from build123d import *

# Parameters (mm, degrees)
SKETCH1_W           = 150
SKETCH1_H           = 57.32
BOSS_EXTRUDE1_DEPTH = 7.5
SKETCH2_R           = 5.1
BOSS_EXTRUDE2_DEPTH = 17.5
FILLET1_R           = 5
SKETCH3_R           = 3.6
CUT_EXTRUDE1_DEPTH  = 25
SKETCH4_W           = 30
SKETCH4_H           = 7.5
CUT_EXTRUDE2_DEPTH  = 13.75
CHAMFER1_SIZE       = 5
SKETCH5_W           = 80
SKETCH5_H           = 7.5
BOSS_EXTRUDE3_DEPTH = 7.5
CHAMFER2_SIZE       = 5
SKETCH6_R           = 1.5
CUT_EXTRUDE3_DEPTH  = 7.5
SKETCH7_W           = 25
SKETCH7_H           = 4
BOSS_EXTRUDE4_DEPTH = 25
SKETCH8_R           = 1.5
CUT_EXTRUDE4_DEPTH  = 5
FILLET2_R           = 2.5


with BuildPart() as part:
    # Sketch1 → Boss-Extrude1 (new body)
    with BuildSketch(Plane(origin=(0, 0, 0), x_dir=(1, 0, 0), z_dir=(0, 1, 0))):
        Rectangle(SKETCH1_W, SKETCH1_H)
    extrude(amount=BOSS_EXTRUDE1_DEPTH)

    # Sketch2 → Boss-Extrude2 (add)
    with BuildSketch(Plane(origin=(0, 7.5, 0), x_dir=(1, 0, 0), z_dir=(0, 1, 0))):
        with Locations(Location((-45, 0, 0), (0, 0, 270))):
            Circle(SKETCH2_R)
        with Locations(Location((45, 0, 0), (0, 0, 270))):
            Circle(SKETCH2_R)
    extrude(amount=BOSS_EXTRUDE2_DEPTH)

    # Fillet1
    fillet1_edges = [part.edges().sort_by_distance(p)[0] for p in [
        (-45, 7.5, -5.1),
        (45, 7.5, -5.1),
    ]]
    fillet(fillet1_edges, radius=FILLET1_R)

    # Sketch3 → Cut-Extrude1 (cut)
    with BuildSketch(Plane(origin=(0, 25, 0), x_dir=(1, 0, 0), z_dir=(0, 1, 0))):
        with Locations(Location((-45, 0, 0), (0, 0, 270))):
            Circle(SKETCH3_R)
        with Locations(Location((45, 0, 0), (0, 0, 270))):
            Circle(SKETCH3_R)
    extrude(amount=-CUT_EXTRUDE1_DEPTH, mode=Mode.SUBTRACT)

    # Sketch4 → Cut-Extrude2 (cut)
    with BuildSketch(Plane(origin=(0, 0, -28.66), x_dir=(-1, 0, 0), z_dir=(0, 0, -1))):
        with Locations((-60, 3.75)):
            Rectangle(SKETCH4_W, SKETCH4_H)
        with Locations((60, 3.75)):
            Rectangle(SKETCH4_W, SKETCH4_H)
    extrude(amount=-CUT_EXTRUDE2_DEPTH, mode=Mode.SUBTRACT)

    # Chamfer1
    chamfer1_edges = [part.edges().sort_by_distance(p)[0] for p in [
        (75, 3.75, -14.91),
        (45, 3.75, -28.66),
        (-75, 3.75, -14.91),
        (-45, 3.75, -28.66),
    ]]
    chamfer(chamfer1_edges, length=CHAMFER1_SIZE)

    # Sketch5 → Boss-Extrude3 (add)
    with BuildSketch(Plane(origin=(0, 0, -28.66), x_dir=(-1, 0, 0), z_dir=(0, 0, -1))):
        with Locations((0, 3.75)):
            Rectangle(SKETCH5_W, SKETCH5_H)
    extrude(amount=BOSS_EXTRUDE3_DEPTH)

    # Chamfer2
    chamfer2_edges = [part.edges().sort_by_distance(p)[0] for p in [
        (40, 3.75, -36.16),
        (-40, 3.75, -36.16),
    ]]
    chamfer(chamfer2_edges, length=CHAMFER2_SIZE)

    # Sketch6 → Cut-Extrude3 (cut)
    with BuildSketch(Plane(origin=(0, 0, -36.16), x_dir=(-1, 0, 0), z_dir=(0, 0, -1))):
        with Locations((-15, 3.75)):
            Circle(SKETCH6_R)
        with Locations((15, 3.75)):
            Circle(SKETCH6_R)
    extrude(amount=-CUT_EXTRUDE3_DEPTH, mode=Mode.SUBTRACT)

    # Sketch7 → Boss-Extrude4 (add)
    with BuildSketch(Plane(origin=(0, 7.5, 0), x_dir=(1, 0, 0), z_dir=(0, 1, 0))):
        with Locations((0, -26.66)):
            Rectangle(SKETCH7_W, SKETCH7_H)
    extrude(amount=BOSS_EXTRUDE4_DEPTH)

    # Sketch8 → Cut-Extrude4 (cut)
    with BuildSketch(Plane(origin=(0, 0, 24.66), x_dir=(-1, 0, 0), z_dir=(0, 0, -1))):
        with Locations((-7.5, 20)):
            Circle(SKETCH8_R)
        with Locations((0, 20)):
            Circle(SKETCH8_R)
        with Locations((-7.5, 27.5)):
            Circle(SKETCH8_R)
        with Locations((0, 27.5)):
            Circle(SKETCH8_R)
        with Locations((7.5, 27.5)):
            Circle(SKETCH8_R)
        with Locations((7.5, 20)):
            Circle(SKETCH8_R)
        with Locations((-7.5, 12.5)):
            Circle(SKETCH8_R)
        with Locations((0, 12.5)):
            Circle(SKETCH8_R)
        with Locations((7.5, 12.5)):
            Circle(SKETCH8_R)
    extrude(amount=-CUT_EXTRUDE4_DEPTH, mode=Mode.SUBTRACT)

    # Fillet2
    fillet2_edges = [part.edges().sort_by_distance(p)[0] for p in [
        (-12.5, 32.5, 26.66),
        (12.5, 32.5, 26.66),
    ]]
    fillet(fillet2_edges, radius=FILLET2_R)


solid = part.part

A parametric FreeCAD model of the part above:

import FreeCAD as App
import Part
import Sketcher

V = App.Vector


def edges_at(feature, points):
    """Names of the edges that pass closest to the given points."""
    edges = feature.Shape.Edges
    near = lambda p: min(range(len(edges)), key=lambda i: edges[i].distToShape(Part.Vertex(*p))[0])
    return sorted({f"Edge{near(p) + 1}" for p in points})


def add_polygon(sketch, points):
    """Adds a closed chain of lines whose ends are joined by coincident constraints."""
    first, n = sketch.GeometryCount, len(points)
    for a, b in zip(points, points[1:] + points[:1]):
        sketch.addGeometry(Part.LineSegment(App.Vector(*a, 0), App.Vector(*b, 0)), False)
    for i in range(n):
        sketch.addConstraint(Sketcher.Constraint("Coincident", first + i, 2, first + (i + 1) % n, 1))

doc = App.newDocument("Part")
body = doc.addObject("PartDesign::Body", "Body")

sketch1 = body.newObject("Sketcher::SketchObject", "Sketch")
sketch1.AttachmentSupport = (doc.getObject("XZ_Plane"), [""])
sketch1.MapMode = "FlatFace"
add_polygon(sketch1, [(-75, -29), (-75, 29), (75, 29), (75, -29)])
sketch1.addConstraint(Sketcher.Constraint("Vertical", 0))
sketch1.addConstraint(Sketcher.Constraint("Horizontal", 1))
sketch1.addConstraint(Sketcher.Constraint("Vertical", 2))
sketch1.addConstraint(Sketcher.Constraint("Horizontal", 3))
sketch1.addConstraint(Sketcher.Constraint("Symmetric", 0, 2, 2, 2, -1, 1))
sketch1.addConstraint(Sketcher.Constraint("DistanceX", 1, 1, 1, 2, 150.0))
sketch1.addConstraint(Sketcher.Constraint("DistanceY", 0, 1, 0, 2, 57.32))
pad1 = body.newObject("PartDesign::Pad", "Pad")
pad1.Profile = sketch1
pad1.Length = 7.5
pad1.Reversed = True

sketch2 = body.newObject("Sketcher::SketchObject", "Sketch001")
sketch2.AttachmentSupport = (doc.getObject("XZ_Plane"), [""])
sketch2.MapMode = "FlatFace"
sketch2.AttachmentOffset = App.Placement(V(0, 0, -7.5), App.Rotation())
sketch2.addGeometry(Part.Circle(V(-45, 0, 0), V(0, 0, 1), 5), False)
sketch2.addGeometry(Part.Circle(V(45, 0, 0), V(0, 0, 1), 5), False)
sketch2.addConstraint(Sketcher.Constraint("Equal", 0, 1))
sketch2.addConstraint(Sketcher.Constraint("Symmetric", 0, 3, 1, 3, -1, 1))
sketch2.addConstraint(Sketcher.Constraint("PointOnObject", 0, 3, -1))
sketch2.addConstraint(Sketcher.Constraint("Diameter", 0, 10.2))
sketch2.addConstraint(Sketcher.Constraint("DistanceX", 0, 3, -1, 1, 45.0))
pad2 = body.newObject("PartDesign::Pad", "Pad001")
pad2.Profile = sketch2
pad2.Length = 17.5
pad2.Reversed = True
doc.recompute()

fillet = body.newObject("PartDesign::Fillet", "Fillet")
fillet.Base = (pad2, edges_at(pad2, [(-45, 7.5, -5.1), (45, 7.5, -5.1)]))
fillet.Radius = 5

sketch3 = body.newObject("Sketcher::SketchObject", "Sketch002")
sketch3.AttachmentSupport = (doc.getObject("XZ_Plane"), [""])
sketch3.MapMode = "FlatFace"
sketch3.AttachmentOffset = App.Placement(V(0, 0, -25), App.Rotation())
sketch3.addGeometry(Part.Circle(V(-45, 0, 0), V(0, 0, 1), 3.6), False)
sketch3.addGeometry(Part.Circle(V(45, 0, 0), V(0, 0, 1), 3.6), False)
sketch3.addConstraint(Sketcher.Constraint("Equal", 0, 1))
sketch3.addConstraint(Sketcher.Constraint("Symmetric", 0, 3, 1, 3, -1, 1))
sketch3.addConstraint(Sketcher.Constraint("PointOnObject", 0, 3, -1))
sketch3.addConstraint(Sketcher.Constraint("Diameter", 0, 7.2))
sketch3.addConstraint(Sketcher.Constraint("DistanceX", 0, 3, -1, 1, 45.0))
pocket1 = body.newObject("PartDesign::Pocket", "Pocket")
pocket1.Profile = sketch3
pocket1.Length = 25
pocket1.Reversed = True

sketch4 = body.newObject("Sketcher::SketchObject", "Sketch003")
sketch4.AttachmentSupport = (doc.getObject("XY_Plane"), [""])
sketch4.MapMode = "FlatFace"
sketch4.AttachmentOffset = App.Placement(V(0, 0, -28.66), App.Rotation())
add_polygon(sketch4, [(75, 8), (75, 0), (45, 0), (45, 8)])
add_polygon(sketch4, [(-45, 8), (-45, 0), (-75, 0), (-75, 8)])
sketch4.addConstraint(Sketcher.Constraint("Vertical", 0))
sketch4.addConstraint(Sketcher.Constraint("Horizontal", 1))
sketch4.addConstraint(Sketcher.Constraint("Vertical", 2))
sketch4.addConstraint(Sketcher.Constraint("Horizontal", 3))
sketch4.addConstraint(Sketcher.Constraint("Vertical", 4))
sketch4.addConstraint(Sketcher.Constraint("Horizontal", 5))
sketch4.addConstraint(Sketcher.Constraint("Vertical", 6))
sketch4.addConstraint(Sketcher.Constraint("Horizontal", 7))
sketch4.addConstraint(Sketcher.Constraint("Symmetric", 1, 2, 4, 2, -1, 1))
sketch4.addConstraint(Sketcher.Constraint("Symmetric", 0, 2, 5, 2, -2))
sketch4.addConstraint(Sketcher.Constraint("Horizontal", 3, 2, 6, 2))
sketch4.addConstraint(Sketcher.Constraint("DistanceX", 1, 2, 1, 1, 30.0))
sketch4.addConstraint(Sketcher.Constraint("DistanceY", 0, 2, 0, 1, 7.5))
sketch4.addConstraint(Sketcher.Constraint("DistanceX", -1, 1, 0, 2, 75.0))
pocket2 = body.newObject("PartDesign::Pocket", "Pocket001")
pocket2.Profile = sketch4
pocket2.Length = 13.75
pocket2.Reversed = True
doc.recompute()

chamfer = body.newObject("PartDesign::Chamfer", "Chamfer")
chamfer.Base = (pocket2, edges_at(pocket2, [
    (75, 3.75, -14.91),
    (45, 3.75, -28.66),
    (-75, 3.75, -14.91),
    (-45, 3.75, -28.66),
]))
chamfer.Size = 5

sketch5 = body.newObject("Sketcher::SketchObject", "Sketch004")
sketch5.AttachmentSupport = (doc.getObject("XY_Plane"), [""])
sketch5.MapMode = "FlatFace"
sketch5.AttachmentOffset = App.Placement(V(0, 0, -28.66), App.Rotation())
add_polygon(sketch5, [(40, 8), (40, 0), (-40, 0), (-40, 8)])
sketch5.addConstraint(Sketcher.Constraint("Vertical", 0))
sketch5.addConstraint(Sketcher.Constraint("Horizontal", 1))
sketch5.addConstraint(Sketcher.Constraint("Vertical", 2))
sketch5.addConstraint(Sketcher.Constraint("Horizontal", 3))
sketch5.addConstraint(Sketcher.Constraint("Symmetric", 0, 2, 1, 2, -1, 1))
sketch5.addConstraint(Sketcher.Constraint("DistanceX", 1, 2, 1, 1, 80.0))
sketch5.addConstraint(Sketcher.Constraint("DistanceY", 0, 2, 0, 1, 7.5))
pad3 = body.newObject("PartDesign::Pad", "Pad002")
pad3.Profile = sketch5
pad3.Length = 7.5
pad3.Reversed = True
doc.recompute()

chamfer2 = body.newObject("PartDesign::Chamfer", "Chamfer001")
chamfer2.Base = (pad3, edges_at(pad3, [(40, 3.75, -36.16), (-40, 3.75, -36.16)]))
chamfer2.Size = 5

sketch6 = body.newObject("Sketcher::SketchObject", "Sketch005")
sketch6.AttachmentSupport = (doc.getObject("XY_Plane"), [""])
sketch6.MapMode = "FlatFace"
sketch6.AttachmentOffset = App.Placement(V(0, 0, -36.16), App.Rotation())
sketch6.addGeometry(Part.Circle(V(15, 3.8, 0), V(0, 0, 1), 1.5), False)
sketch6.addGeometry(Part.Circle(V(-15, 3.8, 0), V(0, 0, 1), 1.5), False)
sketch6.addConstraint(Sketcher.Constraint("Equal", 0, 1))
sketch6.addConstraint(Sketcher.Constraint("Symmetric", 0, 3, 1, 3, -2))
sketch6.addConstraint(Sketcher.Constraint("Diameter", 0, 3.0))
sketch6.addConstraint(Sketcher.Constraint("DistanceX", -1, 1, 0, 3, 15.0))
sketch6.addConstraint(Sketcher.Constraint("DistanceY", -1, 1, 0, 3, 3.75))
pocket3 = body.newObject("PartDesign::Pocket", "Pocket002")
pocket3.Profile = sketch6
pocket3.Length = 7.5
pocket3.Reversed = True

sketch7 = body.newObject("Sketcher::SketchObject", "Sketch006")
sketch7.AttachmentSupport = (doc.getObject("XZ_Plane"), [""])
sketch7.MapMode = "FlatFace"
sketch7.AttachmentOffset = App.Placement(V(0, 0, -7.5), App.Rotation())
add_polygon(sketch7, [(-12.5, 24.7), (-12.5, 28.7), (12.5, 28.7), (12.5, 24.7)])
sketch7.addConstraint(Sketcher.Constraint("Vertical", 0))
sketch7.addConstraint(Sketcher.Constraint("Horizontal", 1))
sketch7.addConstraint(Sketcher.Constraint("Vertical", 2))
sketch7.addConstraint(Sketcher.Constraint("Horizontal", 3))
sketch7.addConstraint(Sketcher.Constraint("DistanceX", 1, 1, 1, 2, 25.0))
sketch7.addConstraint(Sketcher.Constraint("DistanceY", 0, 1, 0, 2, 4.0))
sketch7.addConstraint(Sketcher.Constraint("DistanceX", 0, 2, -1, 1, 12.5))
sketch7.addConstraint(Sketcher.Constraint("DistanceY", -1, 1, 0, 2, 28.66))
pad4 = body.newObject("PartDesign::Pad", "Pad003")
pad4.Profile = sketch7
pad4.Length = 25
pad4.Reversed = True

sketch8 = body.newObject("Sketcher::SketchObject", "Sketch007")
sketch8.AttachmentSupport = (doc.getObject("XY_Plane"), [""])
sketch8.MapMode = "FlatFace"
sketch8.AttachmentOffset = App.Placement(V(0, 0, 24.66), App.Rotation())
sketch8.addGeometry(Part.Circle(V(7.5, 20, 0), V(0, 0, 1), 1.5), False)
sketch8.addGeometry(Part.Circle(V(0, 20, 0), V(0, 0, 1), 1.5), False)
sketch8.addGeometry(Part.Circle(V(7.5, 27.5, 0), V(0, 0, 1), 1.5), False)
sketch8.addGeometry(Part.Circle(V(0, 27.5, 0), V(0, 0, 1), 1.5), False)
sketch8.addGeometry(Part.Circle(V(-7.5, 27.5, 0), V(0, 0, 1), 1.5), False)
sketch8.addGeometry(Part.Circle(V(-7.5, 20, 0), V(0, 0, 1), 1.5), False)
sketch8.addGeometry(Part.Circle(V(7.5, 12.5, 0), V(0, 0, 1), 1.5), False)
sketch8.addGeometry(Part.Circle(V(0, 12.5, 0), V(0, 0, 1), 1.5), False)
sketch8.addGeometry(Part.Circle(V(-7.5, 12.5, 0), V(0, 0, 1), 1.5), False)
sketch8.addConstraint(Sketcher.Constraint("Equal", 0, 1))
sketch8.addConstraint(Sketcher.Constraint("Equal", 1, 2))
sketch8.addConstraint(Sketcher.Constraint("Equal", 2, 3))
sketch8.addConstraint(Sketcher.Constraint("Equal", 3, 4))
sketch8.addConstraint(Sketcher.Constraint("Equal", 4, 5))
sketch8.addConstraint(Sketcher.Constraint("Equal", 5, 6))
sketch8.addConstraint(Sketcher.Constraint("Equal", 6, 7))
sketch8.addConstraint(Sketcher.Constraint("Equal", 7, 8))
sketch8.addConstraint(Sketcher.Constraint("Symmetric", 2, 3, 4, 3, -2))
sketch8.addConstraint(Sketcher.Constraint("Symmetric", 0, 3, 5, 3, -2))
sketch8.addConstraint(Sketcher.Constraint("Symmetric", 6, 3, 8, 3, -2))
sketch8.addConstraint(Sketcher.Constraint("PointOnObject", 1, 3, -2))
sketch8.addConstraint(Sketcher.Constraint("PointOnObject", 3, 3, -2))
sketch8.addConstraint(Sketcher.Constraint("PointOnObject", 7, 3, -2))
sketch8.addConstraint(Sketcher.Constraint("Horizontal", 0, 3, 1, 3))
sketch8.addConstraint(Sketcher.Constraint("Horizontal", 2, 3, 3, 3))
sketch8.addConstraint(Sketcher.Constraint("Horizontal", 6, 3, 7, 3))
sketch8.addConstraint(Sketcher.Constraint("Vertical", 0, 3, 2, 3))
sketch8.addConstraint(Sketcher.Constraint("Vertical", 2, 3, 6, 3))
sketch8.addConstraint(Sketcher.Constraint("Diameter", 0, 3.0))
sketch8.addConstraint(Sketcher.Constraint("DistanceY", -1, 1, 0, 3, 20.0))
sketch8.addConstraint(Sketcher.Constraint("DistanceX", 4, 3, 2, 3, 15.0))
sketch8.addConstraint(Sketcher.Constraint("DistanceY", 6, 3, 2, 3, 15.0))
sketch8.addConstraint(Sketcher.Constraint("DistanceY", -1, 1, 2, 3, 27.5))
pocket4 = body.newObject("PartDesign::Pocket", "Pocket003")
pocket4.Profile = sketch8
pocket4.Length = 5
pocket4.Reversed = True
doc.recompute()

fillet2 = body.newObject("PartDesign::Fillet", "Fillet001")
fillet2.Base = (pocket4, edges_at(pocket4, [(-12.5, 32.5, 26.66), (12.5, 32.5, 26.66)]))
fillet2.Radius = 2.5

doc.recompute()
